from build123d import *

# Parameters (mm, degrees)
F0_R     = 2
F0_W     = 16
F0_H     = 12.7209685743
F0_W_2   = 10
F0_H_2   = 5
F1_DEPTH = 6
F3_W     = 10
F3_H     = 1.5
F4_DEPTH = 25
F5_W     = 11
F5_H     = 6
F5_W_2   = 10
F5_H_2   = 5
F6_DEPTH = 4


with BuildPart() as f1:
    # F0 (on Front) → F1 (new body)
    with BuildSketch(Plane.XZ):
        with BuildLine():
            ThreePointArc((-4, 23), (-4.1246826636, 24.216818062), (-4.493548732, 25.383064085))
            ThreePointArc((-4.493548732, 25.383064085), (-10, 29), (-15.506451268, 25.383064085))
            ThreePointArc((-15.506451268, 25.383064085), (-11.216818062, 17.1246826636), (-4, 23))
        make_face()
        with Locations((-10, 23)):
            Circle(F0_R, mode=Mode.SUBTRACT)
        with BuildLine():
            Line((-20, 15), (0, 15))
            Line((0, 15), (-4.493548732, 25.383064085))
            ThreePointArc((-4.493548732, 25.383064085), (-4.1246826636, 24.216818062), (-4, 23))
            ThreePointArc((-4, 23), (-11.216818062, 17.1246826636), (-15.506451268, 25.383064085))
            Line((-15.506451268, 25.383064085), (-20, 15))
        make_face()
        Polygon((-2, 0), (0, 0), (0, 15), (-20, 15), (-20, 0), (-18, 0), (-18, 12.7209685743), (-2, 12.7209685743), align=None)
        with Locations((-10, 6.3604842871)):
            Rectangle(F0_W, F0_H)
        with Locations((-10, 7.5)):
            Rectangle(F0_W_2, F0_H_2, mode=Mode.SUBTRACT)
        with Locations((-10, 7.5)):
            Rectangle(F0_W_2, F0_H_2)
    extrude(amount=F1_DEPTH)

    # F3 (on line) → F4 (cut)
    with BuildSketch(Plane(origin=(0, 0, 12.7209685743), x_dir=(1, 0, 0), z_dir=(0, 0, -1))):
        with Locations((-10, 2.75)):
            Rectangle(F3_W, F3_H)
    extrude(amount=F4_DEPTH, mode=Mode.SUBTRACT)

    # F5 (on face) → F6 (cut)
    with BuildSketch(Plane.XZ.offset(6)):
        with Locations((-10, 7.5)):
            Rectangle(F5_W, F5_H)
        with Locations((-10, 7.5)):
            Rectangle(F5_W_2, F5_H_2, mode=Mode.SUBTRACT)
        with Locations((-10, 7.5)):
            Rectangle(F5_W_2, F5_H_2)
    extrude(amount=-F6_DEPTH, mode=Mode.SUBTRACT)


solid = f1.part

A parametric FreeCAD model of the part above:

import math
import FreeCAD as App
import Part
import Sketcher

doc = App.newDocument("Part")
params = doc.addObject("Spreadsheet::Sheet", "Params")
for row, (alias, value) in enumerate([
    ("sketch1_diameter", "4 mm"),
    ("sketch1_radius", "6 mm"),
    ("sketch1_width", "2 mm"),
    ("sketch1_width2", "16 mm"),
    ("sketch1_height", "15 mm"),
    ("pad1_length", "6 mm"),
    ("sketch2_width", "10 mm"),
    ("sketch2_height", "1.5 mm"),
    ("pocket1_length", "25 mm"),
    ("sketch3_width", "11 mm"),
    ("sketch3_height", "6 mm"),
    ("pocket2_length", "4 mm"),
], start=1):
    params.set(f"A{row}", alias)
    params.set(f"B{row}", "=" + value)
    params.setAlias(f"B{row}", alias)

body = doc.addObject("PartDesign::Body", "Body")

# Sketch on XZ plane
sketch1 = body.newObject("Sketcher::SketchObject", "Sketch")
sketch1.AttachmentSupport = (doc.getObject("XZ_Plane"), [""])
sketch1.MapMode = "FlatFace"
sketch1.addGeometry([
    Part.ArcOfCircle(Part.Circle(App.Vector(-10, 23, 0), App.Vector(0, 0, 1), 6), math.radians(23), math.radians(157)),  # 0
    Part.LineSegment(App.Vector(-15.5, 25.4, 0), App.Vector(-20, 15, 0)),  # 1
    Part.LineSegment(App.Vector(-20, 15, 0), App.Vector(-20, 0, 0)),  # 2
    Part.LineSegment(App.Vector(-20, 0, 0), App.Vector(-18, 0, 0)),  # 3
    Part.LineSegment(App.Vector(-18, 0, 0), App.Vector(-2, 0, 0)),  # 4
    Part.LineSegment(App.Vector(-2, 0, 0), App.Vector(0, 0, 0)),  # 5
    Part.LineSegment(App.Vector(0, 0, 0), App.Vector(0, 15, 0)),  # 6
    Part.LineSegment(App.Vector(0, 15, 0), App.Vector(-4.5, 25.4, 0)),  # 7
    Part.Circle(App.Vector(-10, 23, 0), App.Vector(0, 0, 1), 2),  # 8
], False)
sketch1.addConstraint([
    Sketcher.Constraint("Tangent", 0, 2, 1, 1),
    Sketcher.Constraint("Coincident", 1, 2, 2, 1),
    Sketcher.Constraint("Coincident", 2, 2, 3, 1),
    Sketcher.Constraint("Coincident", 3, 2, 4, 1),
    Sketcher.Constraint("Coincident", 4, 2, 5, 1),
    Sketcher.Constraint("Coincident", 5, 2, 6, 1),
    Sketcher.Constraint("Coincident", 6, 2, 7, 1),
    Sketcher.Constraint("Tangent", 7, 2, 0, 1),
    Sketcher.Constraint("Vertical", 2),
    Sketcher.Constraint("Horizontal", 3),
    Sketcher.Constraint("Horizontal", 4),
    Sketcher.Constraint("Horizontal", 5),
    Sketcher.Constraint("Vertical", 6),
    Sketcher.Constraint("Coincident", 5, 2, -1, 1),
    Sketcher.Constraint("Coincident", 8, 3, 0, 3),
    Sketcher.Constraint("Horizontal", 1, 2, 6, 2),
    Sketcher.Constraint("Horizontal", 0, 2, 7, 2),
    Sketcher.Constraint("Equal", 3, 5),
    Sketcher.Constraint("Diameter", 8, 4.0),
    Sketcher.Constraint("Radius", 0, 6.0),
    Sketcher.Constraint("DistanceX", 3, 1, 3, 2, 2.0),
    Sketcher.Constraint("DistanceX", 4, 1, 4, 2, 16.0),
    Sketcher.Constraint("DistanceY", 2, 2, 2, 1, 15.0),
    Sketcher.Constraint("DistanceY", -1, 1, 0, 3, 23.0),
])
sketch1.setExpression("Constraints[18]", "Params.sketch1_diameter")
sketch1.setExpression("Constraints[19]", "Params.sketch1_radius")
sketch1.setExpression("Constraints[20]", "Params.sketch1_width")
sketch1.setExpression("Constraints[21]", "Params.sketch1_width2")
sketch1.setExpression("Constraints[22]", "Params.sketch1_height")
pad1 = body.newObject("PartDesign::Pad", "Pad")
pad1.Profile = sketch1
pad1.setExpression("Length", "Params.pad1_length")

# Sketch on XY plane
sketch2 = body.newObject("Sketcher::SketchObject", "Sketch001")
sketch2.AttachmentSupport = (doc.getObject("XY_Plane"), [""])
sketch2.MapMode = "FlatFace"
sketch2.AttachmentOffset = App.Placement(App.Vector(0, 0, 12.720969), App.Rotation())
sketch2.addGeometry([
    Part.LineSegment(App.Vector(-15, -3.5, 0), App.Vector(-15, -2, 0)),
    Part.LineSegment(App.Vector(-15, -2, 0), App.Vector(-5, -2, 0)),
    Part.LineSegment(App.Vector(-5, -2, 0), App.Vector(-5, -3.5, 0)),
    Part.LineSegment(App.Vector(-5, -3.5, 0), App.Vector(-15, -3.5, 0)),
], False)
sketch2.addConstraint([
    Sketcher.Constraint("Coincident", 0, 2, 1, 1),
    Sketcher.Constraint("Coincident", 1, 2, 2, 1),
    Sketcher.Constraint("Coincident", 2, 2, 3, 1),
    Sketcher.Constraint("Coincident", 3, 2, 0, 1),
    Sketcher.Constraint("Vertical", 0),
    Sketcher.Constraint("Horizontal", 1),
    Sketcher.Constraint("Vertical", 2),
    Sketcher.Constraint("Horizontal", 3),
    Sketcher.Constraint("DistanceX", 1, 1, 1, 2, 10.0),
    Sketcher.Constraint("DistanceY", 0, 1, 0, 2, 1.5),
    Sketcher.Constraint("DistanceX", 0, 2, -1, 1, 15.0),
    Sketcher.Constraint("DistanceY", 0, 2, -1, 1, 2.0),
])
sketch2.setExpression("Constraints[8]", "Params.sketch2_width")
sketch2.setExpression("Constraints[9]", "Params.sketch2_height")
pocket1 = body.newObject("PartDesign::Pocket", "Pocket")
pocket1.Profile = sketch2
pocket1.setExpression("Length", "Params.pocket1_length")

# Sketch on XZ plane
sketch3 = body.newObject("Sketcher::SketchObject", "Sketch002")
sketch3.AttachmentSupport = (doc.getObject("XZ_Plane"), [""])
sketch3.MapMode = "FlatFace"
sketch3.AttachmentOffset = App.Placement(App.Vector(0, 0, 6), App.Rotation())
sketch3.addGeometry([
    Part.LineSegment(App.Vector(-16, 10, 0), App.Vector(-16, 4, 0)),
    Part.LineSegment(App.Vector(-16, 4, 0), App.Vector(-4, 4, 0)),
    Part.LineSegment(App.Vector(-4, 4, 0), App.Vector(-4, 10, 0)),
    Part.LineSegment(App.Vector(-4, 10, 0), App.Vector(-16, 10, 0)),
], False)
sketch3.addConstraint([
    Sketcher.Constraint("Coincident", 0, 2, 1, 1),
    Sketcher.Constraint("Coincident", 1, 2, 2, 1),
    Sketcher.Constraint("Coincident", 2, 2, 3, 1),
    Sketcher.Constraint("Coincident", 3, 2, 0, 1),
    Sketcher.Constraint("Vertical", 0),
    Sketcher.Constraint("Horizontal", 1),
    Sketcher.Constraint("Vertical", 2),
    Sketcher.Constraint("Horizontal", 3),
    Sketcher.Constraint("DistanceX", 1, 1, 1, 2, 11.0),
    Sketcher.Constraint("DistanceY", 0, 2, 0, 1, 6.0),
    Sketcher.Constraint("DistanceX", 0, 2, -1, 1, 15.5),
    Sketcher.Constraint("DistanceY", -1, 1, 0, 2, 4.5),
])
sketch3.setExpression("Constraints[8]", "Params.sketch3_width")
sketch3.setExpression("Constraints[9]", "Params.sketch3_height")
pocket2 = body.newObject("PartDesign::Pocket", "Pocket001")
pocket2.Profile = sketch3
pocket2.setExpression("Length", "Params.pocket2_length")

doc.recompute()
